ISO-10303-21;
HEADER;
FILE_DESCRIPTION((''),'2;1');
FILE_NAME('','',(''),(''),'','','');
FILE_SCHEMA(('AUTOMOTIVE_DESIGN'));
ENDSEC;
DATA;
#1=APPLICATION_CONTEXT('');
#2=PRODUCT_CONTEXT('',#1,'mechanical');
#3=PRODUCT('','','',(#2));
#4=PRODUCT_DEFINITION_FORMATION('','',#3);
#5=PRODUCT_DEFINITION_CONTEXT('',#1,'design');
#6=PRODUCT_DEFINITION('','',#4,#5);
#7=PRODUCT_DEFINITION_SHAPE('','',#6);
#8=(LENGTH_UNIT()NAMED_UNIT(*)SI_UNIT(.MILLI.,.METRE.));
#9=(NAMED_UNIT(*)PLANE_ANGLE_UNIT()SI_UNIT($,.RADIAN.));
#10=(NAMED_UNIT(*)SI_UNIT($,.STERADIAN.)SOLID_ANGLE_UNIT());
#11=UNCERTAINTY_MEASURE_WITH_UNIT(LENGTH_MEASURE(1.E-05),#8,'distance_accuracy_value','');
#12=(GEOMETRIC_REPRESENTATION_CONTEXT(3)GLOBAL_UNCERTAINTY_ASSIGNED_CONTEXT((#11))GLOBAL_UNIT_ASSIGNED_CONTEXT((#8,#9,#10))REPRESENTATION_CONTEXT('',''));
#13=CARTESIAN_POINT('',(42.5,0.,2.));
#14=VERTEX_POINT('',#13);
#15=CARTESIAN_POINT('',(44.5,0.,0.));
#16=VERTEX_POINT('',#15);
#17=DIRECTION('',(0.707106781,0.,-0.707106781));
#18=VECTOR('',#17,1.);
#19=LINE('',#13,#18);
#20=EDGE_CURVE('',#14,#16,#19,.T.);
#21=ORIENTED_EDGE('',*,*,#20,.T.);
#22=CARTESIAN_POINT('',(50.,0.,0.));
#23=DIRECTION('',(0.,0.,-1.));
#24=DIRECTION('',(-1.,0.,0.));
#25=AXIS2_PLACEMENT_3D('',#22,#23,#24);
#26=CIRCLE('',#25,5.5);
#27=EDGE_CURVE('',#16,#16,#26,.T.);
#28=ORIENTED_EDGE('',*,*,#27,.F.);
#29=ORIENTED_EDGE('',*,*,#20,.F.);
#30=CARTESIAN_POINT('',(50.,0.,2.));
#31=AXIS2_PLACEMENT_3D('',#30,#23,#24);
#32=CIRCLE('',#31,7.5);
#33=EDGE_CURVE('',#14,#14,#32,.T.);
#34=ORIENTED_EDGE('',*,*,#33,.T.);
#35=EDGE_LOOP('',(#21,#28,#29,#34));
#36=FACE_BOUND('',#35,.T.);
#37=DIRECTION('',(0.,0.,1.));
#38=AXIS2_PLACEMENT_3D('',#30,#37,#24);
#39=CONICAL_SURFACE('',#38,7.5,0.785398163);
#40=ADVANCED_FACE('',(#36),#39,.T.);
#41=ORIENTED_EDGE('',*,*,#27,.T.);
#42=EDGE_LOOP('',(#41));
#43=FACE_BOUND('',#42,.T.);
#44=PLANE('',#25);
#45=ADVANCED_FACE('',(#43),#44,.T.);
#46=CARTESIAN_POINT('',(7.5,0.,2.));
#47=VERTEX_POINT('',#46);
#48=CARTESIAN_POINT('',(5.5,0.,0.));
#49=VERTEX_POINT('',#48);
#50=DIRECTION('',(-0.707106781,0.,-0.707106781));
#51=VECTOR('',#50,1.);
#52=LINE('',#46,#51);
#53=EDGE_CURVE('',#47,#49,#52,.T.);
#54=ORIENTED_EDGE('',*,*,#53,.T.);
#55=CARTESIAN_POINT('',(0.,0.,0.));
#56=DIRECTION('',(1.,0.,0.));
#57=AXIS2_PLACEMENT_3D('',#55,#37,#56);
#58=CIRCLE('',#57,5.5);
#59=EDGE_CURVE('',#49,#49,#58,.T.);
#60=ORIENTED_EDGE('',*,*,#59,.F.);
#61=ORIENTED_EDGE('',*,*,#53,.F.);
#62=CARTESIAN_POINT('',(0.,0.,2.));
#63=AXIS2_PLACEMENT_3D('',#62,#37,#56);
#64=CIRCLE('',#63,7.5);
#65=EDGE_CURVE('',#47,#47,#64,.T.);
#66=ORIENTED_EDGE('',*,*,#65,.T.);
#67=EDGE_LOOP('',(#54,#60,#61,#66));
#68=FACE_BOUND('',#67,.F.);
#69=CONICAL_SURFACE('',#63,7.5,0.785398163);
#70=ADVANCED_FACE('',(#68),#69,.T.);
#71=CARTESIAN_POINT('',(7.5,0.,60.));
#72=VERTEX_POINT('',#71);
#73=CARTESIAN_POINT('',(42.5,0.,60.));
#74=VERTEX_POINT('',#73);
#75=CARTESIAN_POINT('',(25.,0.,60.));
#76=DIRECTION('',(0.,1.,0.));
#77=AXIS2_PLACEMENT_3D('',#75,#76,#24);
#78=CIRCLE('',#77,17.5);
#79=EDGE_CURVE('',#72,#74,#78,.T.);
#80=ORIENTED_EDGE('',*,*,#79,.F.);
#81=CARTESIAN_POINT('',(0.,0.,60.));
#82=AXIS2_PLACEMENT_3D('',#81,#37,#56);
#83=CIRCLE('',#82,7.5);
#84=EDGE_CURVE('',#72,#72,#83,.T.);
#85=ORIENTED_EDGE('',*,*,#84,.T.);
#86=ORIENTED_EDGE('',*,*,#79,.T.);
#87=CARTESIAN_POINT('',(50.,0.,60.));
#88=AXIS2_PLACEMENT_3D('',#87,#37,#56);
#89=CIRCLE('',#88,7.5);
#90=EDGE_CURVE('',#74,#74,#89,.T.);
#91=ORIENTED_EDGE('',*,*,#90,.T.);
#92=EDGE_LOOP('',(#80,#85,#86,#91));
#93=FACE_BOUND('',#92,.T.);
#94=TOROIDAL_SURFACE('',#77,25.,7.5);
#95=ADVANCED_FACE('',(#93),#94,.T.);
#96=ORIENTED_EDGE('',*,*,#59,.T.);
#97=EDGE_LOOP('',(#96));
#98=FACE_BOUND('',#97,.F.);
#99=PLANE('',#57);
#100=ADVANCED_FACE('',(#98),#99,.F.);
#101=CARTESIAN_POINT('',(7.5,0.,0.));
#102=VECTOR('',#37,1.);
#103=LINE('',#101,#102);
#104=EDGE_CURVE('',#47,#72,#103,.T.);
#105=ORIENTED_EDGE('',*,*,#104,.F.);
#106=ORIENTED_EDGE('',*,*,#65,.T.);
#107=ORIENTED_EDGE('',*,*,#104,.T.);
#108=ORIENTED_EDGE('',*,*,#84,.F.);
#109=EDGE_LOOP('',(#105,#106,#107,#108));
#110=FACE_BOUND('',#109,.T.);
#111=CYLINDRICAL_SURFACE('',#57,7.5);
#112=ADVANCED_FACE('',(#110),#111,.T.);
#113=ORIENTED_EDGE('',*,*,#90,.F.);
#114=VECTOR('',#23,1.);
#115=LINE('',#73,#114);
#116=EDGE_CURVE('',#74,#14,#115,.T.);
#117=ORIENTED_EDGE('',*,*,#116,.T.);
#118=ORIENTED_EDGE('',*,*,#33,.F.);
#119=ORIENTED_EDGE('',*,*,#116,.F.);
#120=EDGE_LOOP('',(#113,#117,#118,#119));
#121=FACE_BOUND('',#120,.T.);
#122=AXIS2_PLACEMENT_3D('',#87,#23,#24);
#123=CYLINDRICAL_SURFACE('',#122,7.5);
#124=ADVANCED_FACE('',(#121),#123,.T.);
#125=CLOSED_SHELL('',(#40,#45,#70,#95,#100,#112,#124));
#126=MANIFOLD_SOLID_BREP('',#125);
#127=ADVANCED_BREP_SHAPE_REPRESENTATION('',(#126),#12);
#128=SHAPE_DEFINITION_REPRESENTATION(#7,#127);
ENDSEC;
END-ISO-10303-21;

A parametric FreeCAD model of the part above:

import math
import FreeCAD as App
import Part
import Sketcher
Q = App.Units.Quantity


def edges_at(feature, points):
    """Names of the edges that pass closest to the given points."""
    edges = feature.Shape.Edges
    near = lambda p: min(range(len(edges)), key=lambda i: edges[i].distToShape(Part.Vertex(*p))[0])
    return sorted({f"Edge{near(p) + 1}" for p in points})

doc = App.newDocument("Part")
body = doc.addObject("PartDesign::Body", "Body")

# Sketch on XY plane
sketch1 = doc.addObject("Sketcher::SketchObject", "Sketch")
body.addObject(sketch1)
sketch1.AttachmentSupport = (doc.XY_Plane, [""])
sketch1.MapMode = "FlatFace"
sketch1.addGeometry(Part.Circle(App.Vector(0, 0, 0), App.Vector(0, 0, 1), 7.5), False)
sketch1.addConstraint([
    Sketcher.Constraint("Coincident", 0, 3, -1, 1),
    Sketcher.Constraint("Diameter", 0, Q("15 mm")),
])

# Sketch on XZ plane
sketch2 = doc.addObject("Sketcher::SketchObject", "Sketch001")
body.addObject(sketch2)
sketch2.AttachmentSupport = (doc.XZ_Plane, [""])
sketch2.MapMode = "FlatFace"
sketch2.addGeometry([
    Part.LineSegment(App.Vector(0, 0, 0), App.Vector(0, 60, 0)),
    Part.ArcOfCircle(Part.Circle(App.Vector(25, 60, 0), App.Vector(0, 0, 1), 25), math.radians(0), math.radians(180)),
    Part.LineSegment(App.Vector(50, 60, 0), App.Vector(50, 0, 0)),
], False)
sketch2.addConstraint([
    Sketcher.Constraint("Tangent", 0, 2, 1, 2),
    Sketcher.Constraint("Tangent", 1, 1, 2, 1),
    Sketcher.Constraint("Vertical", 0),
    Sketcher.Constraint("Vertical", 2),
    Sketcher.Constraint("Coincident", 0, 1, -1, 1),
    Sketcher.Constraint("PointOnObject", 2, 2, -1),
    Sketcher.Constraint("Radius", 1, Q("25 mm")),
    Sketcher.Constraint("DistanceY", 0, 1, 0, 2, Q("60 mm")),
])
doc.recompute()

additivepipe = doc.addObject("PartDesign::AdditivePipe", "AdditivePipe")
body.addObject(additivepipe)
additivepipe.Profile = sketch1
additivepipe.Spine = (sketch2, ["Edge1", "Edge2", "Edge3"])
doc.recompute()

chamfer = doc.addObject("PartDesign::Chamfer", "Chamfer")
body.addObject(chamfer)
chamfer.Base = (additivepipe, edges_at(additivepipe, [(-7.5, 0, 0), (57.5, 0, 0)]))
chamfer.Size = 2

doc.recompute()
